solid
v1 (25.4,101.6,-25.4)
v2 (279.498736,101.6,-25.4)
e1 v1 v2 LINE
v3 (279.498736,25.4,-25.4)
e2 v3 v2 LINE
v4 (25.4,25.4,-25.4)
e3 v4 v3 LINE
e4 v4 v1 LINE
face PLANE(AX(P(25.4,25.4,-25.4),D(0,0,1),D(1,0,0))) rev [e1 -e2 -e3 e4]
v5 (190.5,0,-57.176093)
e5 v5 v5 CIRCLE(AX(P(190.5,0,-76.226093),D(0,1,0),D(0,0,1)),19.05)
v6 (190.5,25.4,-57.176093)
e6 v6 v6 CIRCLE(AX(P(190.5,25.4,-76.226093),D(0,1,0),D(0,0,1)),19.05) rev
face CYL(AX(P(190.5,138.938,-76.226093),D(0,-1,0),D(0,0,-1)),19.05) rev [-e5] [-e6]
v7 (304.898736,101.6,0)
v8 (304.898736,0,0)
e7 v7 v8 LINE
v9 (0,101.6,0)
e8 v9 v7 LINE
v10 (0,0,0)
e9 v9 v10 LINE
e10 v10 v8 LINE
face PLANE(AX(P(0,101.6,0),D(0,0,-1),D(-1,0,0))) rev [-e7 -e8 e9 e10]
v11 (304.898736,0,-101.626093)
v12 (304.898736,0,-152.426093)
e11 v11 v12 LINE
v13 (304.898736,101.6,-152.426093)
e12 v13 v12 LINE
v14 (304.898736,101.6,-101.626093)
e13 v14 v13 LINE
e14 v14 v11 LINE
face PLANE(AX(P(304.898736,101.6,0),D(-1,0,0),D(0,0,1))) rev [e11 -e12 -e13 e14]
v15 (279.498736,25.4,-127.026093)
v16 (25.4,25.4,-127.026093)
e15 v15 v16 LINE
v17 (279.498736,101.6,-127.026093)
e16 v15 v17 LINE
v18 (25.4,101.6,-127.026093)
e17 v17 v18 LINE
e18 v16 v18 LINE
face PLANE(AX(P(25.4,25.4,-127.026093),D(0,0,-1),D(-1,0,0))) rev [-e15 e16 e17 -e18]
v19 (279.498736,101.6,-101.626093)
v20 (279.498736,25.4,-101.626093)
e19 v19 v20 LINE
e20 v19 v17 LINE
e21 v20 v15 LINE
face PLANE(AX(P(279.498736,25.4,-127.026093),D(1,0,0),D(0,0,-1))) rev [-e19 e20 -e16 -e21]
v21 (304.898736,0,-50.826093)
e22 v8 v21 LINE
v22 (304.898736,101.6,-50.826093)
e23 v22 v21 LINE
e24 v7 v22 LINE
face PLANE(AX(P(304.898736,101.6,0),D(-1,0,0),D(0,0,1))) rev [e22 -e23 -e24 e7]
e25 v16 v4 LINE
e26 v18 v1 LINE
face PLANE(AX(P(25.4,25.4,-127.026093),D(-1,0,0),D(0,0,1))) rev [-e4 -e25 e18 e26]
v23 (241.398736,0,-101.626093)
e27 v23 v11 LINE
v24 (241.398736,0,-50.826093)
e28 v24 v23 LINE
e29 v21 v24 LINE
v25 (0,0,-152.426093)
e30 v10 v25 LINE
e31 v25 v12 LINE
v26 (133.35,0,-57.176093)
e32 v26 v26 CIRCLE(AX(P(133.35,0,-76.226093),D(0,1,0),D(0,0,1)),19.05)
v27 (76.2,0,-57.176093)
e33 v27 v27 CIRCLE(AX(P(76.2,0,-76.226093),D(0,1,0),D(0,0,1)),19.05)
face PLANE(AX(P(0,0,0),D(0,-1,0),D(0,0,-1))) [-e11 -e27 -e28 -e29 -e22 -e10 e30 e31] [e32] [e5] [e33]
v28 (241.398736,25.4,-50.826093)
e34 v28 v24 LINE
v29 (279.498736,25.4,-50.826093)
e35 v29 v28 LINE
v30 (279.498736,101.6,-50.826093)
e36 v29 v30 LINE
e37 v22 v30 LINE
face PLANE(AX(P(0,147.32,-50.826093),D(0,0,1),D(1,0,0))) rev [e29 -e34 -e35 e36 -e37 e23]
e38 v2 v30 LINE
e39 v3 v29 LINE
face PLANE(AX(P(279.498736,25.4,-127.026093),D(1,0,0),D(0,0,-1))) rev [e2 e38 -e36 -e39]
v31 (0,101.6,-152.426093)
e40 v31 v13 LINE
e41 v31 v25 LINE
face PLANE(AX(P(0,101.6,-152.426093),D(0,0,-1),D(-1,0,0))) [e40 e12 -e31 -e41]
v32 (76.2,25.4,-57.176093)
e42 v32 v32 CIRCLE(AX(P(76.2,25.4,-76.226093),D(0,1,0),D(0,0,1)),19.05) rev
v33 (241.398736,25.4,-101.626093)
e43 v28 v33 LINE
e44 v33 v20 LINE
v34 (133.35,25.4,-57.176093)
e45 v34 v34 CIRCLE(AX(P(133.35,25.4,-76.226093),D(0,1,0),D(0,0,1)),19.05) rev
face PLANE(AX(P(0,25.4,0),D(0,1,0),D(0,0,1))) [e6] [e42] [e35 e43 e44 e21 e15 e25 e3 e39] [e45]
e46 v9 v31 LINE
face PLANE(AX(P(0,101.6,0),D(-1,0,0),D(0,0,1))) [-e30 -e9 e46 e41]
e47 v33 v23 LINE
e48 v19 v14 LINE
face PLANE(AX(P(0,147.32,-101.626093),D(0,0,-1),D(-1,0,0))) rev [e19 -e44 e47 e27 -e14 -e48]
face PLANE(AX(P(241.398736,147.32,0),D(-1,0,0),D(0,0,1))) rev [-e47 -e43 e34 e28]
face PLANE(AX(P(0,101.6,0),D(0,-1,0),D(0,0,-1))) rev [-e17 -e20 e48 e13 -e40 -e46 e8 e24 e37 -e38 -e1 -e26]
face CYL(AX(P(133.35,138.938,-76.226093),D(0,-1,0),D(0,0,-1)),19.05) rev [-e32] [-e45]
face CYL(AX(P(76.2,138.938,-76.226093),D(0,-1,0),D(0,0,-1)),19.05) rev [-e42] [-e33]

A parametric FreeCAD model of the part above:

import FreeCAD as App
import Part
import Sketcher
Q = App.Units.Quantity

doc = App.newDocument("Part")
params = doc.addObject("Spreadsheet::Sheet", "Params")
for row, (alias, value) in enumerate([
    ("pad1_length", "4 in"),
    ("sketch2_height", "2 in"),
    ("sketch2_width", "2.5 in"),
    ("pocket1_length", "5.8 in"),
    ("sketch3_diameter", "1.5 in"),
    ("pocket2_length", "3 in"),
    ("sketch4_diameter", "1.5 in"),
    ("pocket3_length", "5.47 in"),
], start=1):
    params.set(f"A{row}", alias)
    params.set(f"B{row}", "=" + value)
    params.setAlias(f"B{row}", alias)

body = doc.addObject("PartDesign::Body", "Body")

# Sketch on XZ plane
sketch1 = body.newObject("Sketcher::SketchObject", "Sketch")
sketch1.AttachmentSupport = (doc.getObject("XZ_Plane"), [""])
sketch1.MapMode = "FlatFace"
sketch1.addGeometry(Part.LineSegment(App.Vector(0, -152.426093, 0), App.Vector(0, 0, 0)), False)
sketch1.addGeometry(Part.LineSegment(App.Vector(0, 0, 0), App.Vector(304.898736, 0, 0)), False)
sketch1.addGeometry(Part.LineSegment(App.Vector(304.898736, 0, 0), App.Vector(304.898736, -152.426093, 0)), False)
sketch1.addGeometry(Part.LineSegment(App.Vector(304.898736, -152.426093, 0), App.Vector(0, -152.426093, 0)), False)
sketch1.addConstraint(Sketcher.Constraint("Coincident", 0, 2, 1, 1))
sketch1.addConstraint(Sketcher.Constraint("Coincident", 1, 2, 2, 1))
sketch1.addConstraint(Sketcher.Constraint("Coincident", 2, 2, 3, 1))
sketch1.addConstraint(Sketcher.Constraint("Coincident", 3, 2, 0, 1))
sketch1.addConstraint(Sketcher.Constraint("Vertical", 0))
sketch1.addConstraint(Sketcher.Constraint("Horizontal", 1))
sketch1.addConstraint(Sketcher.Constraint("Vertical", 2))
sketch1.addConstraint(Sketcher.Constraint("Horizontal", 3))
sketch1.addConstraint(Sketcher.Constraint("Coincident", 0, 2, -1, 1))
sketch1.addConstraint(Sketcher.Constraint("DistanceX", 1, 1, 1, 2, Q("304.898736 mm")))
sketch1.addConstraint(Sketcher.Constraint("DistanceY", 0, 1, 0, 2, Q("152.426093 mm")))
pad1 = body.newObject("PartDesign::Pad", "Pad")
pad1.Profile = sketch1
pad1.setExpression("Length", "Params.pad1_length")
pad1.Reversed = True

# Sketch on XZ plane
sketch2 = body.newObject("Sketcher::SketchObject", "Sketch001")
sketch2.AttachmentSupport = (doc.getObject("XZ_Plane"), [""])
sketch2.MapMode = "FlatFace"
sketch2.addGeometry(Part.LineSegment(App.Vector(241.398736, -101.626093, 0), App.Vector(241.398736, -50.826093, 0)), False)
sketch2.addGeometry(Part.LineSegment(App.Vector(241.398736, -50.826093, 0), App.Vector(304.898736, -50.826093, 0)), False)
sketch2.addGeometry(Part.LineSegment(App.Vector(304.898736, -50.826093, 0), App.Vector(304.898736, -101.626093, 0)), False)
sketch2.addGeometry(Part.LineSegment(App.Vector(304.898736, -101.626093, 0), App.Vector(241.398736, -101.626093, 0)), False)
sketch2.addConstraint(Sketcher.Constraint("Coincident", 0, 2, 1, 1))
sketch2.addConstraint(Sketcher.Constraint("Coincident", 1, 2, 2, 1))
sketch2.addConstraint(Sketcher.Constraint("Coincident", 2, 2, 3, 1))
sketch2.addConstraint(Sketcher.Constraint("Coincident", 3, 2, 0, 1))
sketch2.addConstraint(Sketcher.Constraint("Vertical", 0))
sketch2.addConstraint(Sketcher.Constraint("Horizontal", 1))
sketch2.addConstraint(Sketcher.Constraint("Vertical", 2))
sketch2.addConstraint(Sketcher.Constraint("Horizontal", 3))
sketch2.addConstraint(Sketcher.Constraint("DistanceY", 0, 1, 0, 2, Q("2 in")))
sketch2.addConstraint(Sketcher.Constraint("DistanceX", 1, 1, 1, 2, Q("2.5 in")))
sketch2.addConstraint(Sketcher.Constraint("DistanceX", -1, 1, 0, 2, Q("241.398736 mm")))
sketch2.addConstraint(Sketcher.Constraint("DistanceY", 0, 2, -1, 1, Q("50.826093 mm")))
sketch2.setExpression("Constraints[8]", "Params.sketch2_height")
sketch2.setExpression("Constraints[9]", "Params.sketch2_width")
pocket1 = body.newObject("PartDesign::Pocket", "Pocket")
pocket1.Profile = sketch2
pocket1.setExpression("Length", "Params.pocket1_length")

# Sketch on XZ plane
sketch3 = body.newObject("Sketcher::SketchObject", "Sketch002")
sketch3.AttachmentSupport = (doc.getObject("XZ_Plane"), [""])
sketch3.MapMode = "FlatFace"
sketch3.AttachmentOffset = App.Placement(App.Vector(0, 0, -4 * 25.4), App.Rotation())
sketch3.addGeometry(Part.LineSegment(App.Vector(25.4, -127.026093, 0), App.Vector(25.4, -25.4, 0)), False)
sketch3.addGeometry(Part.LineSegment(App.Vector(25.4, -25.4, 0), App.Vector(279.498736, -25.4, 0)), False)
sketch3.addGeometry(Part.LineSegment(App.Vector(279.498736, -25.4, 0), App.Vector(279.498736, -127.026093, 0)), False)
sketch3.addGeometry(Part.LineSegment(App.Vector(279.498736, -127.026093, 0), App.Vector(25.4, -127.026093, 0)), False)
sketch3.addGeometry(Part.Circle(App.Vector(76.2, -76.226093, 0), App.Vector(0, 0, 1), 19.05), False)
sketch3.addGeometry(Part.Circle(App.Vector(133.35, -76.226093, 0), App.Vector(0, 0, 1), 19.05), False)
sketch3.addGeometry(Part.Circle(App.Vector(190.5, -76.226093, 0), App.Vector(0, 0, 1), 19.05), False)
sketch3.addConstraint(Sketcher.Constraint("Coincident", 0, 2, 1, 1))
sketch3.addConstraint(Sketcher.Constraint("Coincident", 1, 2, 2, 1))
sketch3.addConstraint(Sketcher.Constraint("Coincident", 2, 2, 3, 1))
sketch3.addConstraint(Sketcher.Constraint("Coincident", 3, 2, 0, 1))
sketch3.addConstraint(Sketcher.Constraint("Vertical", 0))
sketch3.addConstraint(Sketcher.Constraint("Horizontal", 1))
sketch3.addConstraint(Sketcher.Constraint("Vertical", 2))
sketch3.addConstraint(Sketcher.Constraint("Horizontal", 3))
sketch3.addConstraint(Sketcher.Constraint("Equal", 4, 5))
sketch3.addConstraint(Sketcher.Constraint("Equal", 5, 6))
sketch3.addConstraint(Sketcher.Constraint("Horizontal", 4, 3, 5, 3))
sketch3.addConstraint(Sketcher.Constraint("Horizontal", 5, 3, 6, 3))
sketch3.addConstraint(Sketcher.Constraint("Diameter", 4, Q("1.5 in")))
sketch3.addConstraint(Sketcher.Constraint("DistanceX", -1, 1, 4, 3, Q("3 in")))
sketch3.addConstraint(Sketcher.Constraint("DistanceX", -1, 1, 0, 2, Q("1 in")))
sketch3.addConstraint(Sketcher.Constraint("DistanceY", 0, 2, -1, 1, Q("1 in")))
sketch3.addConstraint(Sketcher.Constraint("DistanceY", 2, 2, 6, 3, Q("2 in")))
sketch3.addConstraint(Sketcher.Constraint("DistanceX", -1, 1, 6, 3, Q("7.5 in")))
sketch3.addConstraint(Sketcher.Constraint("DistanceX", -1, 1, 5, 3, Q("5.25 in")))
sketch3.addConstraint(Sketcher.Constraint("DistanceX", 1, 1, 1, 2, Q("254.098736 mm")))
sketch3.addConstraint(Sketcher.Constraint("DistanceY", 0, 1, 0, 2, Q("101.626093 mm")))
sketch3.setExpression("Constraints[12]", "Params.sketch3_diameter")
pocket2 = body.newObject("PartDesign::Pocket", "Pocket001")
pocket2.Profile = sketch3
pocket2.setExpression("Length", "Params.pocket2_length")
pocket2.Reversed = True

# Sketch on XZ plane
sketch4 = body.newObject("Sketcher::SketchObject", "Sketch003")
sketch4.AttachmentSupport = (doc.getObject("XZ_Plane"), [""])
sketch4.MapMode = "FlatFace"
sketch4.AttachmentOffset = App.Placement(App.Vector(0, 0, -5.47 * 25.4), App.Rotation())
sketch4.addGeometry(Part.Circle(App.Vector(76.2, -76.226093, 0), App.Vector(0, 0, 1), 19.05), False)
sketch4.addGeometry(Part.Circle(App.Vector(133.35, -76.226093, 0), App.Vector(0, 0, 1), 19.05), False)
sketch4.addGeometry(Part.Circle(App.Vector(190.5, -76.226093, 0), App.Vector(0, 0, 1), 19.05), False)
sketch4.addConstraint(Sketcher.Constraint("Equal", 0, 1))
sketch4.addConstraint(Sketcher.Constraint("Equal", 1, 2))
sketch4.addConstraint(Sketcher.Constraint("Horizontal", 0, 3, 1, 3))
sketch4.addConstraint(Sketcher.Constraint("Horizontal", 1, 3, 2, 3))
sketch4.addConstraint(Sketcher.Constraint("Diameter", 0, Q("1.5 in")))
sketch4.addConstraint(Sketcher.Constraint("DistanceX", -1, 1, 0, 3, Q("3 in")))
sketch4.addConstraint(Sketcher.Constraint("DistanceX", -1, 1, 2, 3, Q("7.5 in")))
sketch4.addConstraint(Sketcher.Constraint("DistanceX", -1, 1, 1, 3, Q("5.25 in")))
sketch4.addConstraint(Sketcher.Constraint("DistanceY", 0, 3, -1, 1, Q("76.226093 mm")))
sketch4.setExpression("Constraints[4]", "Params.sketch4_diameter")
pocket3 = body.newObject("PartDesign::Pocket", "Pocket002")
pocket3.Profile = sketch4
pocket3.setExpression("Length", "Params.pocket3_length")
pocket3.Reversed = True

doc.recompute()
